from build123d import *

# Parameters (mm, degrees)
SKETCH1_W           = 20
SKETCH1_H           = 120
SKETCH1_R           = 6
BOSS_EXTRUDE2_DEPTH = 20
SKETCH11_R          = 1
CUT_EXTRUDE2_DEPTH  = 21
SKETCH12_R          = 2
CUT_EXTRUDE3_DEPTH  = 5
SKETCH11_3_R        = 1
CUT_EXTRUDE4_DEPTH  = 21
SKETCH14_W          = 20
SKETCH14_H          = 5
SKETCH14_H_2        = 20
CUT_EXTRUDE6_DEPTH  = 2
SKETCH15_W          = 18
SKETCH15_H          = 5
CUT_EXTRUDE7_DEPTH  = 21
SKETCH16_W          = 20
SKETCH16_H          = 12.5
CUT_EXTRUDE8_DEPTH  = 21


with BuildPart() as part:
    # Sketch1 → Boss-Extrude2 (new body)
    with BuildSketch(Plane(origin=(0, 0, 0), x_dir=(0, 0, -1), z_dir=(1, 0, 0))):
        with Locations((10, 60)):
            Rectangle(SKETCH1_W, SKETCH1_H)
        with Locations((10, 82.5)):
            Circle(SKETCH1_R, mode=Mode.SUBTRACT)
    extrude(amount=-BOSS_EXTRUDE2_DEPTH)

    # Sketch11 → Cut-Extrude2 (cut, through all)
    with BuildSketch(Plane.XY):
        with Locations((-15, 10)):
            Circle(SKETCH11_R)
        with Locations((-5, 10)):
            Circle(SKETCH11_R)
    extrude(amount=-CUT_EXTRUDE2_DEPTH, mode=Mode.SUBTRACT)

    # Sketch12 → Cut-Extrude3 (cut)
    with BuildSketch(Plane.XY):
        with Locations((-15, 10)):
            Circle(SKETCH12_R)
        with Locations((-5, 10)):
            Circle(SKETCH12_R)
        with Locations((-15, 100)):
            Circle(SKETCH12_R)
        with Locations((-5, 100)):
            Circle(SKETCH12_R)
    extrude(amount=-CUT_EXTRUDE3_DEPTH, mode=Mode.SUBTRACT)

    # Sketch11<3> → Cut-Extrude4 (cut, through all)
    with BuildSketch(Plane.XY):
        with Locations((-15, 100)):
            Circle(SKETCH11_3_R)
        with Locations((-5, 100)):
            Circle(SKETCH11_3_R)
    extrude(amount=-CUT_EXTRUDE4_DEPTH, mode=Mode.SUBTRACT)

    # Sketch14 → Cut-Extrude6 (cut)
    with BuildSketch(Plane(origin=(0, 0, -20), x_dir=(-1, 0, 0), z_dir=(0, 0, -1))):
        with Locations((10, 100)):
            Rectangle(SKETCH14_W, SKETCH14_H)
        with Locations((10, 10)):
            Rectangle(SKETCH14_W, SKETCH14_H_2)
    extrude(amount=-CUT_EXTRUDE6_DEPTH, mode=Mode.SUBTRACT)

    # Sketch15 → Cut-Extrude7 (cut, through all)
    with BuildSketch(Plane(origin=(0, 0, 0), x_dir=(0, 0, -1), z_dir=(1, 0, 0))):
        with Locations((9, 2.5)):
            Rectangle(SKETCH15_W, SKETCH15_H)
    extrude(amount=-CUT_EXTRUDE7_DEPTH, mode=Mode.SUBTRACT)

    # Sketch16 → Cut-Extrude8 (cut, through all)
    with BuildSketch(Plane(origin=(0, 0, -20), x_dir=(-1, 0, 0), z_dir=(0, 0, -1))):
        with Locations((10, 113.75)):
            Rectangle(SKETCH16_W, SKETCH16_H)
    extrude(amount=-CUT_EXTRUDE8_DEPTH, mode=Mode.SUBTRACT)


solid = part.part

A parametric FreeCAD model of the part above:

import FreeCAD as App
import Part
import Sketcher
from FreeCAD import Vector


def add_polygon(sketch, points):
    """Adds a closed chain of lines whose ends are joined by coincident constraints."""
    first, n = sketch.GeometryCount, len(points)
    for a, b in zip(points, points[1:] + points[:1]):
        sketch.addGeometry(Part.LineSegment(App.Vector(*a, 0), App.Vector(*b, 0)), False)
    for i in range(n):
        sketch.addConstraint(Sketcher.Constraint("Coincident", first + i, 2, first + (i + 1) % n, 1))

doc = App.newDocument("Part")
body = doc.addObject("PartDesign::Body", "Body")

# Sketch on YZ plane
sketch1 = body.newObject("Sketcher::SketchObject", "Sketch")
sketch1.AttachmentSupport = (doc.getObject("YZ_Plane"), [""])
sketch1.MapMode = "FlatFace"
add_polygon(sketch1, [(120, 0), (0, 0), (0, -20), (120, -20)])  # lines 0-3
sketch1.addGeometry(Part.Circle(Vector(82, -10, 0), Vector(0, 0, 1), 6), False)  # 4
sketch1.addConstraint([
    Sketcher.Constraint("Horizontal", 0),
    Sketcher.Constraint("Vertical", 1),
    Sketcher.Constraint("Horizontal", 2),
    Sketcher.Constraint("Vertical", 3),
    Sketcher.Constraint("Coincident", 0, 2, -1, 1),
    Sketcher.Constraint("Diameter", 4, 12.0),
    Sketcher.Constraint("DistanceX", 0, 2, 0, 1, 120.0),
    Sketcher.Constraint("DistanceY", 1, 2, 1, 1, 20.0),
    Sketcher.Constraint("DistanceY", 4, 3, -1, 1, 10.0),
    Sketcher.Constraint("DistanceX", -1, 1, 4, 3, 82.5),
])
pad1 = body.newObject("PartDesign::Pad", "Pad")
pad1.Profile = sketch1
pad1.Length = 20
pad1.Reversed = True

# Sketch on XY plane
sketch2 = body.newObject("Sketcher::SketchObject", "Sketch001")
sketch2.AttachmentSupport = (doc.getObject("XY_Plane"), [""])
sketch2.MapMode = "FlatFace"
sketch2.addGeometry([
    Part.Circle(Vector(-15, 10, 0), Vector(0, 0, 1), 1),
    Part.Circle(Vector(-5, 10, 0), Vector(0, 0, 1), 1),
], False)
sketch2.addConstraint([
    Sketcher.Constraint("Equal", 0, 1),
    Sketcher.Constraint("Horizontal", 0, 3, 1, 3),
    Sketcher.Constraint("Diameter", 0, 2.0),
    Sketcher.Constraint("DistanceX", 0, 3, -1, 1, 15.0),
    Sketcher.Constraint("DistanceY", -1, 1, 0, 3, 10.0),
    Sketcher.Constraint("DistanceX", 1, 3, -1, 1, 5.0),
])
pocket1 = body.newObject("PartDesign::Pocket", "Pocket")
pocket1.Profile = sketch2
pocket1.Type = "ThroughAll"

# Sketch on XY plane
sketch3 = body.newObject("Sketcher::SketchObject", "Sketch002")
sketch3.AttachmentSupport = (doc.getObject("XY_Plane"), [""])
sketch3.MapMode = "FlatFace"
sketch3.addGeometry([
    Part.Circle(Vector(-15, 10, 0), Vector(0, 0, 1), 2),
    Part.Circle(Vector(-5, 10, 0), Vector(0, 0, 1), 2),
    Part.Circle(Vector(-15, 100, 0), Vector(0, 0, 1), 2),
    Part.Circle(Vector(-5, 100, 0), Vector(0, 0, 1), 2),
], False)
sketch3.addConstraint([
    Sketcher.Constraint("Equal", 0, 1),
    Sketcher.Constraint("Equal", 1, 2),
    Sketcher.Constraint("Equal", 2, 3),
    Sketcher.Constraint("Horizontal", 0, 3, 1, 3),
    Sketcher.Constraint("Horizontal", 2, 3, 3, 3),
    Sketcher.Constraint("Vertical", 0, 3, 2, 3),
    Sketcher.Constraint("Vertical", 1, 3, 3, 3),
    Sketcher.Constraint("Diameter", 0, 4.0),
    Sketcher.Constraint("DistanceX", 0, 3, -1, 1, 15.0),
    Sketcher.Constraint("DistanceY", -1, 1, 0, 3, 10.0),
    Sketcher.Constraint("DistanceX", 1, 3, -1, 1, 5.0),
    Sketcher.Constraint("DistanceY", -1, 1, 2, 3, 100.0),
])
pocket2 = body.newObject("PartDesign::Pocket", "Pocket001")
pocket2.Profile = sketch3
pocket2.Length = 5

# Sketch on XY plane
sketch4 = body.newObject("Sketcher::SketchObject", "Sketch003")
sketch4.AttachmentSupport = (doc.getObject("XY_Plane"), [""])
sketch4.MapMode = "FlatFace"
sketch4.addGeometry([
    Part.Circle(Vector(-15, 100, 0), Vector(0, 0, 1), 1),
    Part.Circle(Vector(-5, 100, 0), Vector(0, 0, 1), 1),
], False)
sketch4.addConstraint([
    Sketcher.Constraint("Equal", 0, 1),
    Sketcher.Constraint("Horizontal", 0, 3, 1, 3),
    Sketcher.Constraint("Diameter", 0, 2.0),
    Sketcher.Constraint("DistanceX", 0, 3, -1, 1, 15.0),
    Sketcher.Constraint("DistanceY", -1, 1, 0, 3, 100.0),
    Sketcher.Constraint("DistanceX", 1, 3, -1, 1, 5.0),
])
pocket3 = body.newObject("PartDesign::Pocket", "Pocket002")
pocket3.Profile = sketch4
pocket3.Type = "ThroughAll"

# Sketch on XY plane
sketch5 = body.newObject("Sketcher::SketchObject", "Sketch004")
sketch5.AttachmentSupport = (doc.getObject("XY_Plane"), [""])
sketch5.MapMode = "FlatFace"
sketch5.AttachmentOffset = App.Placement(Vector(0, 0, -20), App.Rotation())
add_polygon(sketch5, [(0, 102), (0, 98), (-20, 98), (-20, 102)])  # lines 0-3
add_polygon(sketch5, [(0, 20), (0, 0), (-20, 0), (-20, 20)])  # lines 4-7
sketch5.addConstraint([
    Sketcher.Constraint("Vertical", 0),
    Sketcher.Constraint("Horizontal", 1),
    Sketcher.Constraint("Vertical", 2),
    Sketcher.Constraint("Horizontal", 3),
    Sketcher.Constraint("Vertical", 4),
    Sketcher.Constraint("Horizontal", 5),
    Sketcher.Constraint("Vertical", 6),
    Sketcher.Constraint("Horizontal", 7),
    Sketcher.Constraint("Coincident", 4, 2, -1, 1),
    Sketcher.Constraint("PointOnObject", 0, 2, -2),
    Sketcher.Constraint("Vertical", 2, 2, 5, 2),
    Sketcher.Constraint("Equal", 7, 4),
    Sketcher.Constraint("DistanceX", 1, 2, 1, 1, 20.0),
    Sketcher.Constraint("DistanceY", 0, 2, 0, 1, 5.0),
    Sketcher.Constraint("DistanceY", -1, 1, 0, 2, 97.5),
])
pocket4 = body.newObject("PartDesign::Pocket", "Pocket003")
pocket4.Profile = sketch5
pocket4.Length = 2
pocket4.Reversed = True

# Sketch on YZ plane
sketch6 = body.newObject("Sketcher::SketchObject", "Sketch005")
sketch6.AttachmentSupport = (doc.getObject("YZ_Plane"), [""])
sketch6.MapMode = "FlatFace"
add_polygon(sketch6, [(5, 0), (0, 0), (0, -18), (5, -18)])  # lines 0-3
sketch6.addConstraint([
    Sketcher.Constraint("Horizontal", 0),
    Sketcher.Constraint("Vertical", 1),
    Sketcher.Constraint("Horizontal", 2),
    Sketcher.Constraint("Vertical", 3),
    Sketcher.Constraint("Coincident", 0, 2, -1, 1),
    Sketcher.Constraint("DistanceX", 0, 2, 0, 1, 5.0),
    Sketcher.Constraint("DistanceY", 1, 2, 1, 1, 18.0),
])
pocket5 = body.newObject("PartDesign::Pocket", "Pocket004")
pocket5.Profile = sketch6
pocket5.Type = "ThroughAll"

# Sketch on XY plane
sketch7 = body.newObject("Sketcher::SketchObject", "Sketch006")
sketch7.AttachmentSupport = (doc.getObject("XY_Plane"), [""])
sketch7.MapMode = "FlatFace"
sketch7.AttachmentOffset = App.Placement(Vector(0, 0, -20), App.Rotation())
add_polygon(sketch7, [(0, 120), (0, 108), (-20, 108), (-20, 120)])  # lines 0-3
sketch7.addConstraint([
    Sketcher.Constraint("Vertical", 0),
    Sketcher.Constraint("Horizontal", 1),
    Sketcher.Constraint("Vertical", 2),
    Sketcher.Constraint("Horizontal", 3),
    Sketcher.Constraint("PointOnObject", 0, 2, -2),
    Sketcher.Constraint("DistanceX", 1, 2, 1, 1, 20.0),
    Sketcher.Constraint("DistanceY", 0, 2, 0, 1, 12.5),
    Sketcher.Constraint("DistanceY", -1, 1, 2, 2, 120.0),
])
pocket6 = body.newObject("PartDesign::Pocket", "Pocket005")
pocket6.Profile = sketch7
pocket6.Type = "ThroughAll"
pocket6.Reversed = True

doc.recompute()
